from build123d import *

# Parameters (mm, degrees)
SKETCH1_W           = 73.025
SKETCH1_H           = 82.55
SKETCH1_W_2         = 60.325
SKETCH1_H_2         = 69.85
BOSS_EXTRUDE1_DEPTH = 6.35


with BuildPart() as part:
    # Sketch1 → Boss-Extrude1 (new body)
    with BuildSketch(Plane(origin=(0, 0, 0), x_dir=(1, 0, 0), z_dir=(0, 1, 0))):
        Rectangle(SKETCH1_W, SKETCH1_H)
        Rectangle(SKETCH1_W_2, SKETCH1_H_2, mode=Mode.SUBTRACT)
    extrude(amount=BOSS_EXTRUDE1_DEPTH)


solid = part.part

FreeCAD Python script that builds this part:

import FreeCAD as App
import Part
import Sketcher

V = App.Vector
Q = App.Units.Quantity


def add_polygon(sketch, points):
    """Adds a closed chain of lines whose ends are joined by coincident constraints."""
    first, n = sketch.GeometryCount, len(points)
    for a, b in zip(points, points[1:] + points[:1]):
        sketch.addGeometry(Part.LineSegment(App.Vector(*a, 0), App.Vector(*b, 0)), False)
    for i in range(n):
        sketch.addConstraint(Sketcher.Constraint("Coincident", first + i, 2, first + (i + 1) % n, 1))

doc = App.newDocument("Part")
body = doc.addObject("PartDesign::Body", "Body")

# Sketch on XZ plane
sketch1 = body.newObject("Sketcher::SketchObject", "Sketch")
sketch1.AttachmentSupport = (doc.getObject("XZ_Plane"), [""])
sketch1.MapMode = "FlatFace"
add_polygon(sketch1, [(-37, -41), (-37, 41), (37, 41), (37, -41)])  # lines 0-3
add_polygon(sketch1, [(30, 35), (-30, 35), (-30, -35), (30, -35)])  # lines 4-7
sketch1.addConstraint(Sketcher.Constraint("Vertical", 0))
sketch1.addConstraint(Sketcher.Constraint("Horizontal", 1))
sketch1.addConstraint(Sketcher.Constraint("Vertical", 2))
sketch1.addConstraint(Sketcher.Constraint("Horizontal", 3))
sketch1.addConstraint(Sketcher.Constraint("Horizontal", 4))
sketch1.addConstraint(Sketcher.Constraint("Vertical", 5))
sketch1.addConstraint(Sketcher.Constraint("Horizontal", 6))
sketch1.addConstraint(Sketcher.Constraint("Vertical", 7))
sketch1.addConstraint(Sketcher.Constraint("Symmetric", 0, 2, 2, 2, -1, 1))
sketch1.addConstraint(Sketcher.Constraint("Symmetric", 4, 2, 6, 2, -1, 1))
sketch1.addConstraint(Sketcher.Constraint("DistanceY", 3, 2, 4, 2, Q("3 in")))
sketch1.addConstraint(Sketcher.Constraint("DistanceY", 0, 1, 0, 2, Q("3.25 in")))
sketch1.addConstraint(Sketcher.Constraint("DistanceX", 1, 1, 1, 2, Q("2.875 in")))
sketch1.addConstraint(Sketcher.Constraint("DistanceX", 4, 2, 4, 1, Q("2.375 in")))
pad1 = body.newObject("PartDesign::Pad", "Pad")
pad1.Profile = sketch1
pad1.Length = Q("0.25 in")
pad1.Reversed = True

doc.recompute()
